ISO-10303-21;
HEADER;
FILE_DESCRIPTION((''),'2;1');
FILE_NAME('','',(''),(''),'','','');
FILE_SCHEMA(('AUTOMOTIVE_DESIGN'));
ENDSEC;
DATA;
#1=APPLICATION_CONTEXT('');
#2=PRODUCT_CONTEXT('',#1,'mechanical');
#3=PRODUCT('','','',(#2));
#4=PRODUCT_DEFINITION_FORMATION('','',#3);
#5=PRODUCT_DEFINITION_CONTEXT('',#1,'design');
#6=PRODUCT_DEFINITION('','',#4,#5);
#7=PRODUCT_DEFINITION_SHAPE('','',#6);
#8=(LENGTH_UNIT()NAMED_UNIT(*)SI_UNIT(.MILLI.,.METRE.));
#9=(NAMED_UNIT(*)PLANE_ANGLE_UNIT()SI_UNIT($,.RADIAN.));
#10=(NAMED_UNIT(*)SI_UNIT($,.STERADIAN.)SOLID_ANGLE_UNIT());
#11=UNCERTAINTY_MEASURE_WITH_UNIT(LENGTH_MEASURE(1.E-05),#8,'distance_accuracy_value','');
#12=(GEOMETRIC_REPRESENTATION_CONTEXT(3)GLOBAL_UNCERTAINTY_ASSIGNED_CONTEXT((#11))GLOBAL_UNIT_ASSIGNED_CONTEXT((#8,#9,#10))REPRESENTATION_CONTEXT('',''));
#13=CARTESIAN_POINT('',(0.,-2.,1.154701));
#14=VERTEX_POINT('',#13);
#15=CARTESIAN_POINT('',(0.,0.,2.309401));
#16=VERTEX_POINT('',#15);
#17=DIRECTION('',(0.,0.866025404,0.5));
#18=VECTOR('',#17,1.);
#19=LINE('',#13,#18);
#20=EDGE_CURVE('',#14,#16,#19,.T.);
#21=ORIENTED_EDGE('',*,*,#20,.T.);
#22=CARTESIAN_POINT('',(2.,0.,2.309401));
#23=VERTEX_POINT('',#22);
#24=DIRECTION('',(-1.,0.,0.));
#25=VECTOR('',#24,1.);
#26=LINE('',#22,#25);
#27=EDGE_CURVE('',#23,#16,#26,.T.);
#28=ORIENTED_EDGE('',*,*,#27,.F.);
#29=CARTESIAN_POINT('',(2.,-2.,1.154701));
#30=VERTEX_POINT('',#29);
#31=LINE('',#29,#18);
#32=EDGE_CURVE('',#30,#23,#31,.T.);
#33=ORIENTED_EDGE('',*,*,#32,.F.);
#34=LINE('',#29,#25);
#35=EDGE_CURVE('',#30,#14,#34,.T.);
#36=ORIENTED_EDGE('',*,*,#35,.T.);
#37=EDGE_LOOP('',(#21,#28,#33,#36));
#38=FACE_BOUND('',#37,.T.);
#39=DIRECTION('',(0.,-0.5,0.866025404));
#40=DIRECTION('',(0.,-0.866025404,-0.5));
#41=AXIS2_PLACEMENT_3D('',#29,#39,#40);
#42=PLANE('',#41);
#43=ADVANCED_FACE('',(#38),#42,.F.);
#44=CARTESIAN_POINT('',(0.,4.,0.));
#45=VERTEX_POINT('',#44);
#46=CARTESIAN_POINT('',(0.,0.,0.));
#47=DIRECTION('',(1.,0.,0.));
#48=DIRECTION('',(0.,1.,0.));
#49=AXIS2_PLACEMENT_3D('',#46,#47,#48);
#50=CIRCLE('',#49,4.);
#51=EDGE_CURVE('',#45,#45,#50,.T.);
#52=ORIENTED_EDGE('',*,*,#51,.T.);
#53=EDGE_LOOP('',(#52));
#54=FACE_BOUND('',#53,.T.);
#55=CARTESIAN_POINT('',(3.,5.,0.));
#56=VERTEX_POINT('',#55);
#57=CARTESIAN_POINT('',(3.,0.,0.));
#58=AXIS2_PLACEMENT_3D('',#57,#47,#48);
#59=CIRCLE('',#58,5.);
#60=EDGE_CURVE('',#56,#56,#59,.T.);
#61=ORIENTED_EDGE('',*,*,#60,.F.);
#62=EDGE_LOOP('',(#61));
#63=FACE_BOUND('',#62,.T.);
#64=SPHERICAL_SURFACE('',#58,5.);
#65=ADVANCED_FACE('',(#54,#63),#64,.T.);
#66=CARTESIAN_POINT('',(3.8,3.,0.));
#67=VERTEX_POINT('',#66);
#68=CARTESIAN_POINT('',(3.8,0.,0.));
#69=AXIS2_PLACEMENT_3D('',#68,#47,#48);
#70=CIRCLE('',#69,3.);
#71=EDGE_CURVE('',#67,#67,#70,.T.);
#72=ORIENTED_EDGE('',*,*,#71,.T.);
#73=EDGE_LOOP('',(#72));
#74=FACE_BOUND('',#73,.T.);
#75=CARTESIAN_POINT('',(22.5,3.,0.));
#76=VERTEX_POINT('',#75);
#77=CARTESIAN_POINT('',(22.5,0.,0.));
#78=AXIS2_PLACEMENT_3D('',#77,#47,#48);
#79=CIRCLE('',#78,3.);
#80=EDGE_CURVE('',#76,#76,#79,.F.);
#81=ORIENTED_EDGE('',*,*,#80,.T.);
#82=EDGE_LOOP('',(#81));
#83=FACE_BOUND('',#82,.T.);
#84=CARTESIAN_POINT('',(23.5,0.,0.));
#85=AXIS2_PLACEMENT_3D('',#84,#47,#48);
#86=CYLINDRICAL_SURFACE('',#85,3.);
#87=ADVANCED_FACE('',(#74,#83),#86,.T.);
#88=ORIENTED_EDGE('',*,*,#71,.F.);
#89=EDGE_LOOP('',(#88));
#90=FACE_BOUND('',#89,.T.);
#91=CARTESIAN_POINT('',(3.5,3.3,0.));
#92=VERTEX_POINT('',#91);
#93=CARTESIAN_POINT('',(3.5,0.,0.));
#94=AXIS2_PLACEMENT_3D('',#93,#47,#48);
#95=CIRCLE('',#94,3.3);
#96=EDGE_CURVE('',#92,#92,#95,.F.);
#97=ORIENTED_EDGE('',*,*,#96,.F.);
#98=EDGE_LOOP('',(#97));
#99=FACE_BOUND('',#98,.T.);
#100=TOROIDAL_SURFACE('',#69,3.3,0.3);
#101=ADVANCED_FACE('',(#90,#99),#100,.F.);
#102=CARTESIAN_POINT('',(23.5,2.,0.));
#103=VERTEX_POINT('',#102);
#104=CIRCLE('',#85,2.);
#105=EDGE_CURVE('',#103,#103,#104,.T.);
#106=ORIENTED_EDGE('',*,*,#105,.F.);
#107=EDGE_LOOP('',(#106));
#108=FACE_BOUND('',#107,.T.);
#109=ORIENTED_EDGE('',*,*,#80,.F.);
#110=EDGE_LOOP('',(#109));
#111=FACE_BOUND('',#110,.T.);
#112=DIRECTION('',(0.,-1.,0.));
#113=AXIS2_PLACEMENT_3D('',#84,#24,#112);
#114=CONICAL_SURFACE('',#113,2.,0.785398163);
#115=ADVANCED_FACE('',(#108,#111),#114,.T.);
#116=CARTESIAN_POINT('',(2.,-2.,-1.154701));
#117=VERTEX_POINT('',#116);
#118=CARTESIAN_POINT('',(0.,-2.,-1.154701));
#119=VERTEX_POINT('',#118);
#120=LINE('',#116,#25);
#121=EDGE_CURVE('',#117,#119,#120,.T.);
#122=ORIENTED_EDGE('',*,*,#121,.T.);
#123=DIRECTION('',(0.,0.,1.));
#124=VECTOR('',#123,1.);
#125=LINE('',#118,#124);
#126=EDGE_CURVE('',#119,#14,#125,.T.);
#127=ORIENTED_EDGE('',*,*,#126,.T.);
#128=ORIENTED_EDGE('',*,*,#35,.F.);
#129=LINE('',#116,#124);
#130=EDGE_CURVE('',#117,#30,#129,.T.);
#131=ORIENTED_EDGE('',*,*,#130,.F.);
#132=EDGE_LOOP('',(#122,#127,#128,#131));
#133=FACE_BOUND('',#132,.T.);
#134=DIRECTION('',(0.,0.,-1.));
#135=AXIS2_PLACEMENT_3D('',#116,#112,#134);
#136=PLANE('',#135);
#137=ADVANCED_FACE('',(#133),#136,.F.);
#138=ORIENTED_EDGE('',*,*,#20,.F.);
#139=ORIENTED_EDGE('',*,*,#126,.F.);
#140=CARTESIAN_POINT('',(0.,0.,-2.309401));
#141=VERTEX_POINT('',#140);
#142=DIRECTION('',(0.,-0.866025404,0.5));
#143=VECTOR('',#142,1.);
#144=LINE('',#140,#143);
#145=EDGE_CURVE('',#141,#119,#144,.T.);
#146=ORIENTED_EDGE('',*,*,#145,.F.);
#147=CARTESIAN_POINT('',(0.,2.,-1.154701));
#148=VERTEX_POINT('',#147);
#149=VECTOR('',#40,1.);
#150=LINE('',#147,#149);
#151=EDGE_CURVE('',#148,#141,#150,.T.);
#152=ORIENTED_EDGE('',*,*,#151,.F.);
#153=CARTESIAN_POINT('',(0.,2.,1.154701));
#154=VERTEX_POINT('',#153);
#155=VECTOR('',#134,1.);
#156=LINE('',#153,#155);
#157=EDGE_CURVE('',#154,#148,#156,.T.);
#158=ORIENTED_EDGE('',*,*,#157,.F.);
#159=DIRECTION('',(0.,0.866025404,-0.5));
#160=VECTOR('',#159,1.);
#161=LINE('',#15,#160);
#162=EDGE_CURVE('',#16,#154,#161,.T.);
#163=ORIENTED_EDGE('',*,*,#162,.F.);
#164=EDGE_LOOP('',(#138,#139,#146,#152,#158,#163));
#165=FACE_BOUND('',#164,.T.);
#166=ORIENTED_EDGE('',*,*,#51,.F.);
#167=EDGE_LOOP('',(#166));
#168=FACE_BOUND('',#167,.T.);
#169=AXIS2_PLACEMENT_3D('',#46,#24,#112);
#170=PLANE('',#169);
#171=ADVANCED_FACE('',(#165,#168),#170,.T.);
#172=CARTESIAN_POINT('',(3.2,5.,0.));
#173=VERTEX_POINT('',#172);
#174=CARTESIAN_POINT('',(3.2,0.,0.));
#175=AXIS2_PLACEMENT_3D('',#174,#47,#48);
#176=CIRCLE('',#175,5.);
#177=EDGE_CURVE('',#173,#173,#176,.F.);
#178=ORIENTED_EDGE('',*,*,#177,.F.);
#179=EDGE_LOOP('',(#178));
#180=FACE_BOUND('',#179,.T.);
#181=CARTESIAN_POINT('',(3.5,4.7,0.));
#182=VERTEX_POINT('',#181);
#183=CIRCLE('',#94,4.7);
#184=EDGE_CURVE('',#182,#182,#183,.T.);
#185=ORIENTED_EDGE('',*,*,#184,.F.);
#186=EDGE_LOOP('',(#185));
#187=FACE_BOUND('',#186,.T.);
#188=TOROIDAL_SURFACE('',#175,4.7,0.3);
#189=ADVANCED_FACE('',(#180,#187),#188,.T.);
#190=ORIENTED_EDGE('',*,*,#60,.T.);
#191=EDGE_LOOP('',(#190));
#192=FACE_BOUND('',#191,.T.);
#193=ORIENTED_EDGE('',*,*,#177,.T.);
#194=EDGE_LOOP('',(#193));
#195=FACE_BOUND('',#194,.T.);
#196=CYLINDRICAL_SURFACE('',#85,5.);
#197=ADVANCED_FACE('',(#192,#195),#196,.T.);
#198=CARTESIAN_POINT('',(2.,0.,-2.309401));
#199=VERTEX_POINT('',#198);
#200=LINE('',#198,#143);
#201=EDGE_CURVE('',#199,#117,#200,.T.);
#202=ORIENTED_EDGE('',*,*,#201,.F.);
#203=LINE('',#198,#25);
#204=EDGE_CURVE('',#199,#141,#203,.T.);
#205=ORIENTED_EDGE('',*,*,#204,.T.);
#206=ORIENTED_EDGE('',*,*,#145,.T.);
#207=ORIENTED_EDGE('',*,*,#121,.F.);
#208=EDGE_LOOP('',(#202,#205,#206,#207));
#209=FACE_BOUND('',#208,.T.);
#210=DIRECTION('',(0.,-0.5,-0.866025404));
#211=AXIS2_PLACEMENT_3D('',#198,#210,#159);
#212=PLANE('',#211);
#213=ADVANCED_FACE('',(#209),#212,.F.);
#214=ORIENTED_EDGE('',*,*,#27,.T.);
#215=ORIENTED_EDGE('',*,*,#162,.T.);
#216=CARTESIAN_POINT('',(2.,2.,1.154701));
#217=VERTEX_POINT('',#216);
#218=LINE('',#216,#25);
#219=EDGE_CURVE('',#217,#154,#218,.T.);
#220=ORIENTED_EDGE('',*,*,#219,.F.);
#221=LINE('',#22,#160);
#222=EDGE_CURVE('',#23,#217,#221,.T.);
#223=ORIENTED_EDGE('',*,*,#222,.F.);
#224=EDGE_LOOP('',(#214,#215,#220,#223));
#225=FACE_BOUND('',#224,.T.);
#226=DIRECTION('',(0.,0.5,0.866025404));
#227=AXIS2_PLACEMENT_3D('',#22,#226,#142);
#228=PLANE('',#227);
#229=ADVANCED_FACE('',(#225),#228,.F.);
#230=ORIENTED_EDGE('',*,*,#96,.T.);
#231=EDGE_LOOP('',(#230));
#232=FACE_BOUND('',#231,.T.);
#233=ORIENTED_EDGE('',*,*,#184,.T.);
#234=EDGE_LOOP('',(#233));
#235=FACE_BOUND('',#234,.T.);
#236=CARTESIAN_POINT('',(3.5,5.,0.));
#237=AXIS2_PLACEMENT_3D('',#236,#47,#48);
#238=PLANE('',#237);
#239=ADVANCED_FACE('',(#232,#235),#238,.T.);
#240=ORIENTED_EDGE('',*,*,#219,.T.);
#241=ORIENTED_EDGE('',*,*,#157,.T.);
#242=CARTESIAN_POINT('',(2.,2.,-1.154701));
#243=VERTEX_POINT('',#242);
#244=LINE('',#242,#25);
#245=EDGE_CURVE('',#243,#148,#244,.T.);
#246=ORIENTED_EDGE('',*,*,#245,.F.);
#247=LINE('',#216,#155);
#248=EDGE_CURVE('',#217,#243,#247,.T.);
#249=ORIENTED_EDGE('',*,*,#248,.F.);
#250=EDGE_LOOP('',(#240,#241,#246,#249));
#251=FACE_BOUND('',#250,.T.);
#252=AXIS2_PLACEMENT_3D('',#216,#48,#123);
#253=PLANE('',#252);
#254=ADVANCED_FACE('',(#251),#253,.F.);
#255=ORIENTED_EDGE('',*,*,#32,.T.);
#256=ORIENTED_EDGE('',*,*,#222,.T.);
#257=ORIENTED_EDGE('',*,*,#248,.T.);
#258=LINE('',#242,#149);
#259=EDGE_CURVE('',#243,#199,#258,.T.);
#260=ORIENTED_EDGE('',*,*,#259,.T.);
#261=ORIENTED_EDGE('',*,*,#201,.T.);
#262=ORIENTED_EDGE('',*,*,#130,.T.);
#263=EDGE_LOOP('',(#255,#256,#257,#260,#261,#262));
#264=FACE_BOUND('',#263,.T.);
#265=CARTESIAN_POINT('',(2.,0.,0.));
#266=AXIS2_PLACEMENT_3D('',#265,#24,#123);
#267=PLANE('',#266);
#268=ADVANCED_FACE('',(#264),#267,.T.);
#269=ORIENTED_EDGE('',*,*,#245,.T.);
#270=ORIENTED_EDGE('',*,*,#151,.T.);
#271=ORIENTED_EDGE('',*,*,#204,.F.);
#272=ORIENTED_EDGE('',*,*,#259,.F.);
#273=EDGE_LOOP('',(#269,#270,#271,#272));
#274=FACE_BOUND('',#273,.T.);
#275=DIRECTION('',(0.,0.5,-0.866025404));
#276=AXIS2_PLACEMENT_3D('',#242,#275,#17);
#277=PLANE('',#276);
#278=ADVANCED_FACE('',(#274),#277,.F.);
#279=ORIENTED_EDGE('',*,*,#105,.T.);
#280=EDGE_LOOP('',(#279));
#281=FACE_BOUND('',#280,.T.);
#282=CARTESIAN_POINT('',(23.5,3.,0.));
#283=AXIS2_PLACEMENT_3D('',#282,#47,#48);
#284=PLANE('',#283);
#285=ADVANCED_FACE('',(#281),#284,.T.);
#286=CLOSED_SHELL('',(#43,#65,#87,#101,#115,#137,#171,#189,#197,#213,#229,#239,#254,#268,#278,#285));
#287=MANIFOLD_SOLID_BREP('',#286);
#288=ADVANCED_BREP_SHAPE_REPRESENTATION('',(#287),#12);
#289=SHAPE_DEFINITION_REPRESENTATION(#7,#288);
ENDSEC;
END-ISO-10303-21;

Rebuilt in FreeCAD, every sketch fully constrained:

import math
import FreeCAD as App
import Part
import Sketcher

V = App.Vector
Q = App.Units.Quantity


def edges_at(feature, points):
    """Names of the edges that pass closest to the given points."""
    edges = feature.Shape.Edges
    near = lambda p: min(range(len(edges)), key=lambda i: edges[i].distToShape(Part.Vertex(*p))[0])
    return sorted({f"Edge{near(p) + 1}" for p in points})


def add_polygon(sketch, points):
    """Adds a closed chain of lines whose ends are joined by coincident constraints."""
    first, n = sketch.GeometryCount, len(points)
    for a, b in zip(points, points[1:] + points[:1]):
        sketch.addGeometry(Part.LineSegment(App.Vector(*a, 0), App.Vector(*b, 0)), False)
    for i in range(n):
        sketch.addConstraint(Sketcher.Constraint("Coincident", first + i, 2, first + (i + 1) % n, 1))

doc = App.newDocument("Part")
body = doc.addObject("PartDesign::Body", "Body")

sketch1 = body.newObject("Sketcher::SketchObject", "Sketch")
sketch1.AttachmentSupport = (doc.getObject("XY_Plane"), [""])
sketch1.MapMode = "FlatFace"
sketch1.addGeometry(Part.LineSegment(V(0, 4, 0), V(0, 0, 0)), False)
sketch1.addGeometry(Part.LineSegment(V(0, 0, 0), V(23.5, 0, 0)), False)
sketch1.addGeometry(Part.LineSegment(V(23.5, 0, 0), V(23.5, 3, 0)), False)
sketch1.addGeometry(Part.LineSegment(V(23.5, 3, 0), V(3.5, 3, 0)), False)
sketch1.addGeometry(Part.LineSegment(V(3.5, 3, 0), V(3.5, 5, 0)), False)
sketch1.addGeometry(Part.LineSegment(V(3.5, 5, 0), V(3, 5, 0)), False)
sketch1.addGeometry(Part.ArcOfCircle(Part.Circle(V(3, 0, 0), V(0, 0, 1), 5), math.radians(90), math.radians(127)), False)
sketch1.addConstraint(Sketcher.Constraint("Coincident", 0, 2, 1, 1))
sketch1.addConstraint(Sketcher.Constraint("Coincident", 1, 2, 2, 1))
sketch1.addConstraint(Sketcher.Constraint("Coincident", 2, 2, 3, 1))
sketch1.addConstraint(Sketcher.Constraint("Coincident", 3, 2, 4, 1))
sketch1.addConstraint(Sketcher.Constraint("Coincident", 4, 2, 5, 1))
sketch1.addConstraint(Sketcher.Constraint("Tangent", 5, 2, 6, 1))
sketch1.addConstraint(Sketcher.Constraint("Coincident", 6, 2, 0, 1))
sketch1.addConstraint(Sketcher.Constraint("Vertical", 0))
sketch1.addConstraint(Sketcher.Constraint("Horizontal", 1))
sketch1.addConstraint(Sketcher.Constraint("Vertical", 2))
sketch1.addConstraint(Sketcher.Constraint("Horizontal", 3))
sketch1.addConstraint(Sketcher.Constraint("Vertical", 4))
sketch1.addConstraint(Sketcher.Constraint("Horizontal", 5))
sketch1.addConstraint(Sketcher.Constraint("Coincident", 0, 2, -1, 1))
sketch1.addConstraint(Sketcher.Constraint("PointOnObject", 6, 3, -1))
sketch1.addConstraint(Sketcher.Constraint("Radius", 6, 5.0))
sketch1.addConstraint(Sketcher.Constraint("DistanceX", 3, 2, 3, 1, 20.0))
sketch1.addConstraint(Sketcher.Constraint("DistanceY", 0, 2, 0, 1, 4.0))
sketch1.addConstraint(Sketcher.Constraint("DistanceY", 2, 1, 2, 2, 3.0))
sketch1.addConstraint(Sketcher.Constraint("DistanceX", 1, 1, 1, 2, 23.5))
revolution = body.newObject("PartDesign::Revolution", "Revolution")
revolution.Profile = sketch1
revolution.ReferenceAxis = (sketch1, ["H_Axis"])
revolution.Angle = 360

sketch2 = body.newObject("Sketcher::SketchObject", "Sketch001")
sketch2.AttachmentSupport = (doc.getObject("YZ_Plane"), [""])
sketch2.MapMode = "FlatFace"
add_polygon(sketch2, [(2, 1.2), (2, -1.2), (0, -2.3), (-2, -1.2), (-2, 1.2), (0, 2.3)])
sketch2.addConstraint(Sketcher.Constraint("Vertical", 0))
sketch2.addConstraint(Sketcher.Constraint("Vertical", 3))
sketch2.addConstraint(Sketcher.Constraint("Symmetric", 0, 2, 3, 2, -1, 1))
sketch2.addConstraint(Sketcher.Constraint("Symmetric", 1, 2, 4, 2, -1, 1))
sketch2.addConstraint(Sketcher.Constraint("PointOnObject", 1, 2, -2))
sketch2.addConstraint(Sketcher.Constraint("Parallel", 2, 5))
sketch2.addConstraint(Sketcher.Constraint("Horizontal", 0, 2, 2, 2))
sketch2.addConstraint(Sketcher.Constraint("Angle", 1, Q("-150 deg")))
sketch2.addConstraint(Sketcher.Constraint("DistanceX", -1, 1, 0, 2, 2.0))
sketch2.addConstraint(Sketcher.Constraint("DistanceY", 0, 2, 0, 1, 2.309401))
pocket1 = body.newObject("PartDesign::Pocket", "Pocket")
pocket1.Profile = sketch2
pocket1.Length = 2
pocket1.Reversed = True
doc.recompute()

fillet = body.newObject("PartDesign::Fillet", "Fillet")
fillet.Base = (pocket1, edges_at(pocket1, [(3.5, -3, 0), (3.5, -5, 0)]))
fillet.Radius = 0.3
doc.recompute()

chamfer = body.newObject("PartDesign::Chamfer", "Chamfer")
chamfer.Base = (fillet, edges_at(fillet, [(23.5, -3, 0)]))
chamfer.Size = 1

doc.recompute()
